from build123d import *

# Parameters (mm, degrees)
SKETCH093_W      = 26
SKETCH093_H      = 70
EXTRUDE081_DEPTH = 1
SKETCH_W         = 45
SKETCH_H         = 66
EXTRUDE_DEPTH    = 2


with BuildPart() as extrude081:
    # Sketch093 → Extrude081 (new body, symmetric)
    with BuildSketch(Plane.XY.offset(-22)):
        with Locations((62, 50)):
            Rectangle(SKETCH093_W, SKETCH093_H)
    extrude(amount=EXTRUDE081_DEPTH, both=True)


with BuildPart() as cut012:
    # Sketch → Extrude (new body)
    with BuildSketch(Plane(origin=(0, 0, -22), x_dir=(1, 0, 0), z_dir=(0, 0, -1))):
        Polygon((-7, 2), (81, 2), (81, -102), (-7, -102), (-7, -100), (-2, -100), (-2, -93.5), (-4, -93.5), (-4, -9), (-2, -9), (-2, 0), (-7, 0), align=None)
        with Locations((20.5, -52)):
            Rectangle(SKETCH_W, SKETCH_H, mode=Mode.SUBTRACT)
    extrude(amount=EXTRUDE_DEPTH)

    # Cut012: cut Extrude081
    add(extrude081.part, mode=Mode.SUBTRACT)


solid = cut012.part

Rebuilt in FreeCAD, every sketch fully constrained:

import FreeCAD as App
import Part
import Sketcher
Q = App.Units.Quantity

doc = App.newDocument("Part")
body = doc.addObject("PartDesign::Body", "Body")

# Sketch on XY plane
sketch1 = doc.addObject("Sketcher::SketchObject", "Sketch")
body.addObject(sketch1)
sketch1.AttachmentSupport = (doc.XY_Plane, [""])
sketch1.MapMode = "FlatFace"
sketch1.AttachmentOffset = App.Placement(App.Vector(0, 0, -22), App.Rotation())
sketch1.addGeometry([
    Part.LineSegment(App.Vector(49, 85, 0), App.Vector(49, 15, 0)),
    Part.LineSegment(App.Vector(49, 15, 0), App.Vector(75, 15, 0)),
    Part.LineSegment(App.Vector(75, 15, 0), App.Vector(75, 85, 0)),
    Part.LineSegment(App.Vector(75, 85, 0), App.Vector(49, 85, 0)),
], False)
sketch1.addConstraint([
    Sketcher.Constraint("Coincident", 0, 2, 1, 1),
    Sketcher.Constraint("Coincident", 1, 2, 2, 1),
    Sketcher.Constraint("Coincident", 2, 2, 3, 1),
    Sketcher.Constraint("Coincident", 3, 2, 0, 1),
    Sketcher.Constraint("Vertical", 0),
    Sketcher.Constraint("Horizontal", 1),
    Sketcher.Constraint("Vertical", 2),
    Sketcher.Constraint("Horizontal", 3),
    Sketcher.Constraint("DistanceX", 1, 1, 1, 2, Q("26 mm")),
    Sketcher.Constraint("DistanceY", 0, 2, 0, 1, Q("70 mm")),
    Sketcher.Constraint("DistanceX", -1, 1, 0, 2, Q("49 mm")),
    Sketcher.Constraint("DistanceY", -1, 1, 0, 2, Q("15 mm")),
])
pad1 = doc.addObject("PartDesign::Pad", "Pad")
body.addObject(pad1)
pad1.Profile = sketch1
pad1.Length = 2
pad1.Midplane = True
body2 = doc.addObject("PartDesign::Body", "Body001")

# Sketch on XY plane
sketch2 = doc.addObject("Sketcher::SketchObject", "Sketch001")
body2.addObject(sketch2)
sketch2.AttachmentSupport = (doc.getObject("XY_Plane001"), [""])
sketch2.MapMode = "FlatFace"
sketch2.AttachmentOffset = App.Placement(App.Vector(0, 0, -22), App.Rotation())
sketch2.addGeometry([
    Part.LineSegment(App.Vector(81, -2, 0), App.Vector(-7, -2, 0)),  # 0
    Part.LineSegment(App.Vector(-7, -2, 0), App.Vector(-7, 0, 0)),  # 1
    Part.LineSegment(App.Vector(-7, 0, 0), App.Vector(-2, 0, 0)),  # 2
    Part.LineSegment(App.Vector(-2, 0, 0), App.Vector(-2, 9, 0)),  # 3
    Part.LineSegment(App.Vector(-2, 9, 0), App.Vector(-4, 9, 0)),  # 4
    Part.LineSegment(App.Vector(-4, 9, 0), App.Vector(-4, 93.5, 0)),  # 5
    Part.LineSegment(App.Vector(-4, 93.5, 0), App.Vector(-2, 93.5, 0)),  # 6
    Part.LineSegment(App.Vector(-2, 93.5, 0), App.Vector(-2, 100, 0)),  # 7
    Part.LineSegment(App.Vector(-2, 100, 0), App.Vector(-7, 100, 0)),  # 8
    Part.LineSegment(App.Vector(-7, 100, 0), App.Vector(-7, 102, 0)),  # 9
    Part.LineSegment(App.Vector(-7, 102, 0), App.Vector(81, 102, 0)),  # 10
    Part.LineSegment(App.Vector(81, 102, 0), App.Vector(81, -2, 0)),  # 11
    Part.LineSegment(App.Vector(-2, 85, 0), App.Vector(-2, 19, 0)),  # 12
    Part.LineSegment(App.Vector(-2, 19, 0), App.Vector(43, 19, 0)),  # 13
    Part.LineSegment(App.Vector(43, 19, 0), App.Vector(43, 85, 0)),  # 14
    Part.LineSegment(App.Vector(43, 85, 0), App.Vector(-2, 85, 0)),  # 15
], False)
sketch2.addConstraint([
    Sketcher.Constraint("Coincident", 0, 2, 1, 1),
    Sketcher.Constraint("Coincident", 1, 2, 2, 1),
    Sketcher.Constraint("Coincident", 2, 2, 3, 1),
    Sketcher.Constraint("Coincident", 3, 2, 4, 1),
    Sketcher.Constraint("Coincident", 4, 2, 5, 1),
    Sketcher.Constraint("Coincident", 5, 2, 6, 1),
    Sketcher.Constraint("Coincident", 6, 2, 7, 1),
    Sketcher.Constraint("Coincident", 7, 2, 8, 1),
    Sketcher.Constraint("Coincident", 8, 2, 9, 1),
    Sketcher.Constraint("Coincident", 9, 2, 10, 1),
    Sketcher.Constraint("Coincident", 10, 2, 11, 1),
    Sketcher.Constraint("Coincident", 11, 2, 0, 1),
    Sketcher.Constraint("Coincident", 12, 2, 13, 1),
    Sketcher.Constraint("Coincident", 13, 2, 14, 1),
    Sketcher.Constraint("Coincident", 14, 2, 15, 1),
    Sketcher.Constraint("Coincident", 15, 2, 12, 1),
    Sketcher.Constraint("Horizontal", 0),
    Sketcher.Constraint("Vertical", 1),
    Sketcher.Constraint("Horizontal", 2),
    Sketcher.Constraint("Vertical", 3),
    Sketcher.Constraint("Horizontal", 4),
    Sketcher.Constraint("Vertical", 5),
    Sketcher.Constraint("Horizontal", 6),
    Sketcher.Constraint("Vertical", 7),
    Sketcher.Constraint("Horizontal", 8),
    Sketcher.Constraint("Vertical", 9),
    Sketcher.Constraint("Horizontal", 10),
    Sketcher.Constraint("Vertical", 11),
    Sketcher.Constraint("Vertical", 12),
    Sketcher.Constraint("Horizontal", 13),
    Sketcher.Constraint("Vertical", 14),
    Sketcher.Constraint("Horizontal", 15),
    Sketcher.Constraint("PointOnObject", 1, 2, -1),
    Sketcher.Constraint("Vertical", 3, 2, 6, 2),
    Sketcher.Constraint("Vertical", 1, 2, 8, 2),
    Sketcher.Constraint("Vertical", 7, 2, 12, 2),
    Sketcher.Constraint("Equal", 6, 1),
    Sketcher.Constraint("Equal", 1, 9),
    Sketcher.Constraint("DistanceX", 0, 2, 0, 1, Q("88 mm")),
    Sketcher.Constraint("DistanceX", 2, 1, 2, 2, Q("5 mm")),
    Sketcher.Constraint("DistanceX", 4, 2, 4, 1, Q("2 mm")),
    Sketcher.Constraint("DistanceX", 13, 1, 13, 2, Q("45 mm")),
    Sketcher.Constraint("DistanceY", 3, 1, 3, 2, Q("9 mm")),
    Sketcher.Constraint("DistanceY", 11, 2, 11, 1, Q("104 mm")),
    Sketcher.Constraint("DistanceY", 12, 2, 12, 1, Q("66 mm")),
    Sketcher.Constraint("DistanceY", 5, 1, 5, 2, Q("84.5 mm")),
    Sketcher.Constraint("DistanceX", 0, 2, -1, 1, Q("7 mm")),
    Sketcher.Constraint("DistanceY", -1, 1, 12, 2, Q("19 mm")),
])
pad2 = doc.addObject("PartDesign::Pad", "Pad001")
body2.addObject(pad2)
pad2.Profile = sketch2
pad2.Length = 2
pad2.Reversed = True
doc.recompute()

boolean = doc.addObject("PartDesign::Boolean", "Boolean")
body2.addObject(boolean)
boolean.Type = "Cut"
boolean.addObjects([body])

doc.recompute()
